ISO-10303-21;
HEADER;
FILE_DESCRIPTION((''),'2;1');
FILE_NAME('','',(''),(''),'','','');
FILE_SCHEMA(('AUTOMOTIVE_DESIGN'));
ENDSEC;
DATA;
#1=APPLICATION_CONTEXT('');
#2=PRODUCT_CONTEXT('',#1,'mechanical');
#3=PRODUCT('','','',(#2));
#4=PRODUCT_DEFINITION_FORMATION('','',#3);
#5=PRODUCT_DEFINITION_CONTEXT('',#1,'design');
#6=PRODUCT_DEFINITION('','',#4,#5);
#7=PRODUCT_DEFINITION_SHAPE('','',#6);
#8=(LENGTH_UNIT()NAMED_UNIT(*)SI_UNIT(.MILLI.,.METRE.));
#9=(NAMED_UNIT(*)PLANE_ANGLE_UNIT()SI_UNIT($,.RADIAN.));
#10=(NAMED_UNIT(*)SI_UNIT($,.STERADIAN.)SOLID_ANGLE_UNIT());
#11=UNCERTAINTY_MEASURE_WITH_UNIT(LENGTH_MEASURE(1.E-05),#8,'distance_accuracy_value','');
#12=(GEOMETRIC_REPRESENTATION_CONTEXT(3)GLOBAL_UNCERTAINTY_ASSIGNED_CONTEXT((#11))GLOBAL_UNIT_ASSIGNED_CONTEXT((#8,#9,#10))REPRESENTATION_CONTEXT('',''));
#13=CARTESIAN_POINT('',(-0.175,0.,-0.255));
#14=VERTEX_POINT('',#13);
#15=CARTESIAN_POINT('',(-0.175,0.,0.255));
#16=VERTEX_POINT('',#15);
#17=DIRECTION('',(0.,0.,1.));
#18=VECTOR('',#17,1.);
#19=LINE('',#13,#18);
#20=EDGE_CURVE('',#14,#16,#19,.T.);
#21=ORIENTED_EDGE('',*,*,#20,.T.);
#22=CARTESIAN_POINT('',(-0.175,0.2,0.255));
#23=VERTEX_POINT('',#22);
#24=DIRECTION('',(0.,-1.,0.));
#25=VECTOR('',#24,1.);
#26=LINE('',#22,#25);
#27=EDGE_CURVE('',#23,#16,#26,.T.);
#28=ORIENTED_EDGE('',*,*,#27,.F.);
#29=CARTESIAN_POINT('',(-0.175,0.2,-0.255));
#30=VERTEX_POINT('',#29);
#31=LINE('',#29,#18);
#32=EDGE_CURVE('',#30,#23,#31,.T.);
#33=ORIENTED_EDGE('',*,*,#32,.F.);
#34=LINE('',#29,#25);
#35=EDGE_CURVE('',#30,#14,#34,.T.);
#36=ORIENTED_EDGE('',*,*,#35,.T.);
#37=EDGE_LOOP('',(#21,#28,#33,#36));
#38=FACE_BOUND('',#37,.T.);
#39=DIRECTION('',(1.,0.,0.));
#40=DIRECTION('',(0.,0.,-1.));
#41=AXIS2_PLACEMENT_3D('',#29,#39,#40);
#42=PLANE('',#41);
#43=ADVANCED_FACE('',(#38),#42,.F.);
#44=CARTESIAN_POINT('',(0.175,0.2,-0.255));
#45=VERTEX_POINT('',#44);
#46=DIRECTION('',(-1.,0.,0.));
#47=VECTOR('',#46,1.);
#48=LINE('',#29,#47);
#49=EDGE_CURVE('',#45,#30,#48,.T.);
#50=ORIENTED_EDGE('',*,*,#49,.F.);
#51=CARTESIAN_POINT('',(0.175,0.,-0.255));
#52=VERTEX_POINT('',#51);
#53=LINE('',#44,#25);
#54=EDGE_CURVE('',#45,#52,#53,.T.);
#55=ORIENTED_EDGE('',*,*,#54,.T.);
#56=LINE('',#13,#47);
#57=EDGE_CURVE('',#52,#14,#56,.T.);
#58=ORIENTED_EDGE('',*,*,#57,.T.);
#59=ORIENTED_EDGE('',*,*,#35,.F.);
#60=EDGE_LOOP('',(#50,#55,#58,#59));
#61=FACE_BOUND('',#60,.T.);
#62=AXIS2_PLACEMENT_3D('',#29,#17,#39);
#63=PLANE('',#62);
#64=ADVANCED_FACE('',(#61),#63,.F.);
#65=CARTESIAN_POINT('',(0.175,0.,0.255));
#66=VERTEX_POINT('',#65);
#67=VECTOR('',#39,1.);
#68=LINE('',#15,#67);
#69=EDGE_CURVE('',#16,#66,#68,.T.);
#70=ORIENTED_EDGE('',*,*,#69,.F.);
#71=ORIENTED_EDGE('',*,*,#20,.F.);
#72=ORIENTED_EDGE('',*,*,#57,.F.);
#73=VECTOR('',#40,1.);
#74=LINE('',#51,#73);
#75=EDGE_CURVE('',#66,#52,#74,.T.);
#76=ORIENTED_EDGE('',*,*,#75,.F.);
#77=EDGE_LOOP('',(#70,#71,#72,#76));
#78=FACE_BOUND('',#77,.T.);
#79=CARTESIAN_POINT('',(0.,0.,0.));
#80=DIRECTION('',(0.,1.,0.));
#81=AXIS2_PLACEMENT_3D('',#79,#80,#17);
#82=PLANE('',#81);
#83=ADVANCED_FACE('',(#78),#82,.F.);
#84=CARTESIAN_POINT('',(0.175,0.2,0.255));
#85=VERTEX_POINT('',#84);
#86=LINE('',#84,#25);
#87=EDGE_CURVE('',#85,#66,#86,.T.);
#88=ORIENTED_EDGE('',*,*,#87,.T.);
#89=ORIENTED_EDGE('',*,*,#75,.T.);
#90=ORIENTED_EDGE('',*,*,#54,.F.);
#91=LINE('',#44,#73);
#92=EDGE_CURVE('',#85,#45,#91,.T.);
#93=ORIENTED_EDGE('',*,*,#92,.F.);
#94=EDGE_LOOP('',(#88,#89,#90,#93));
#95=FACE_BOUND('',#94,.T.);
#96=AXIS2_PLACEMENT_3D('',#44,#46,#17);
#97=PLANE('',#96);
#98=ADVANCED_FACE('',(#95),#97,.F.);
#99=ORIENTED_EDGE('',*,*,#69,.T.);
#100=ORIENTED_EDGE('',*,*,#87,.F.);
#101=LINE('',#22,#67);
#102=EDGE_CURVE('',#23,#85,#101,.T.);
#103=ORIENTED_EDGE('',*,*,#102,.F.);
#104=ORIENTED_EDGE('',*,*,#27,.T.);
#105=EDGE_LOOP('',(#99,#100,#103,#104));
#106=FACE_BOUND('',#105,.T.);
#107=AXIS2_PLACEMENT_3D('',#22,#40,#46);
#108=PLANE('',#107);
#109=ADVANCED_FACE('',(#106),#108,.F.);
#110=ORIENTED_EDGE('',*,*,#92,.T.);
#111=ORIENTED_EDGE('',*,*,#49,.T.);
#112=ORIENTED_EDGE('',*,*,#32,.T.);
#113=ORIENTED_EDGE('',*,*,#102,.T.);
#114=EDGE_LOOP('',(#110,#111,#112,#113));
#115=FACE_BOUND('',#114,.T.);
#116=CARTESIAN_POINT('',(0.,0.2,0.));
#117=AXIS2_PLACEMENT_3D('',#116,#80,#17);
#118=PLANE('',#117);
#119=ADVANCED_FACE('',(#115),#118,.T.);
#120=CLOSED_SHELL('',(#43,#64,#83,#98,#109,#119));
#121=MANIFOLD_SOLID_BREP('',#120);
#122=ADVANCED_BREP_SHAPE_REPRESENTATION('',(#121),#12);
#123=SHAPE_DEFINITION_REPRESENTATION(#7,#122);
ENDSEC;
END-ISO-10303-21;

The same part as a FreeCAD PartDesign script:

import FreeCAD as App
import Part
import Sketcher

V = App.Vector
Q = App.Units.Quantity

doc = App.newDocument("Part")
body = doc.addObject("PartDesign::Body", "Body")

sketch1 = body.newObject("Sketcher::SketchObject", "Sketch")
sketch1.AttachmentSupport = (doc.getObject("XZ_Plane"), [""])
sketch1.MapMode = "FlatFace"
sketch1.addGeometry([
    Part.LineSegment(V(-0.17, -0.26, 0), V(-0.17, 0.26, 0)),
    Part.LineSegment(V(-0.17, 0.26, 0), V(0.17, 0.26, 0)),
    Part.LineSegment(V(0.17, 0.26, 0), V(0.17, -0.26, 0)),
    Part.LineSegment(V(0.17, -0.26, 0), V(-0.17, -0.26, 0)),
], False)
sketch1.addConstraint([
    Sketcher.Constraint("Coincident", 0, 2, 1, 1),
    Sketcher.Constraint("Coincident", 1, 2, 2, 1),
    Sketcher.Constraint("Coincident", 2, 2, 3, 1),
    Sketcher.Constraint("Coincident", 3, 2, 0, 1),
    Sketcher.Constraint("Vertical", 0),
    Sketcher.Constraint("Horizontal", 1),
    Sketcher.Constraint("Vertical", 2),
    Sketcher.Constraint("Horizontal", 3),
    Sketcher.Constraint("Symmetric", 0, 2, 2, 2, -1, 1),
    Sketcher.Constraint("DistanceX", 1, 1, 1, 2, Q("0.35 mm")),
    Sketcher.Constraint("DistanceY", 0, 1, 0, 2, Q("0.51 mm")),
])
pad1 = body.newObject("PartDesign::Pad", "Pad")
pad1.Profile = sketch1
pad1.Length = 0.2
pad1.Reversed = True

doc.recompute()
